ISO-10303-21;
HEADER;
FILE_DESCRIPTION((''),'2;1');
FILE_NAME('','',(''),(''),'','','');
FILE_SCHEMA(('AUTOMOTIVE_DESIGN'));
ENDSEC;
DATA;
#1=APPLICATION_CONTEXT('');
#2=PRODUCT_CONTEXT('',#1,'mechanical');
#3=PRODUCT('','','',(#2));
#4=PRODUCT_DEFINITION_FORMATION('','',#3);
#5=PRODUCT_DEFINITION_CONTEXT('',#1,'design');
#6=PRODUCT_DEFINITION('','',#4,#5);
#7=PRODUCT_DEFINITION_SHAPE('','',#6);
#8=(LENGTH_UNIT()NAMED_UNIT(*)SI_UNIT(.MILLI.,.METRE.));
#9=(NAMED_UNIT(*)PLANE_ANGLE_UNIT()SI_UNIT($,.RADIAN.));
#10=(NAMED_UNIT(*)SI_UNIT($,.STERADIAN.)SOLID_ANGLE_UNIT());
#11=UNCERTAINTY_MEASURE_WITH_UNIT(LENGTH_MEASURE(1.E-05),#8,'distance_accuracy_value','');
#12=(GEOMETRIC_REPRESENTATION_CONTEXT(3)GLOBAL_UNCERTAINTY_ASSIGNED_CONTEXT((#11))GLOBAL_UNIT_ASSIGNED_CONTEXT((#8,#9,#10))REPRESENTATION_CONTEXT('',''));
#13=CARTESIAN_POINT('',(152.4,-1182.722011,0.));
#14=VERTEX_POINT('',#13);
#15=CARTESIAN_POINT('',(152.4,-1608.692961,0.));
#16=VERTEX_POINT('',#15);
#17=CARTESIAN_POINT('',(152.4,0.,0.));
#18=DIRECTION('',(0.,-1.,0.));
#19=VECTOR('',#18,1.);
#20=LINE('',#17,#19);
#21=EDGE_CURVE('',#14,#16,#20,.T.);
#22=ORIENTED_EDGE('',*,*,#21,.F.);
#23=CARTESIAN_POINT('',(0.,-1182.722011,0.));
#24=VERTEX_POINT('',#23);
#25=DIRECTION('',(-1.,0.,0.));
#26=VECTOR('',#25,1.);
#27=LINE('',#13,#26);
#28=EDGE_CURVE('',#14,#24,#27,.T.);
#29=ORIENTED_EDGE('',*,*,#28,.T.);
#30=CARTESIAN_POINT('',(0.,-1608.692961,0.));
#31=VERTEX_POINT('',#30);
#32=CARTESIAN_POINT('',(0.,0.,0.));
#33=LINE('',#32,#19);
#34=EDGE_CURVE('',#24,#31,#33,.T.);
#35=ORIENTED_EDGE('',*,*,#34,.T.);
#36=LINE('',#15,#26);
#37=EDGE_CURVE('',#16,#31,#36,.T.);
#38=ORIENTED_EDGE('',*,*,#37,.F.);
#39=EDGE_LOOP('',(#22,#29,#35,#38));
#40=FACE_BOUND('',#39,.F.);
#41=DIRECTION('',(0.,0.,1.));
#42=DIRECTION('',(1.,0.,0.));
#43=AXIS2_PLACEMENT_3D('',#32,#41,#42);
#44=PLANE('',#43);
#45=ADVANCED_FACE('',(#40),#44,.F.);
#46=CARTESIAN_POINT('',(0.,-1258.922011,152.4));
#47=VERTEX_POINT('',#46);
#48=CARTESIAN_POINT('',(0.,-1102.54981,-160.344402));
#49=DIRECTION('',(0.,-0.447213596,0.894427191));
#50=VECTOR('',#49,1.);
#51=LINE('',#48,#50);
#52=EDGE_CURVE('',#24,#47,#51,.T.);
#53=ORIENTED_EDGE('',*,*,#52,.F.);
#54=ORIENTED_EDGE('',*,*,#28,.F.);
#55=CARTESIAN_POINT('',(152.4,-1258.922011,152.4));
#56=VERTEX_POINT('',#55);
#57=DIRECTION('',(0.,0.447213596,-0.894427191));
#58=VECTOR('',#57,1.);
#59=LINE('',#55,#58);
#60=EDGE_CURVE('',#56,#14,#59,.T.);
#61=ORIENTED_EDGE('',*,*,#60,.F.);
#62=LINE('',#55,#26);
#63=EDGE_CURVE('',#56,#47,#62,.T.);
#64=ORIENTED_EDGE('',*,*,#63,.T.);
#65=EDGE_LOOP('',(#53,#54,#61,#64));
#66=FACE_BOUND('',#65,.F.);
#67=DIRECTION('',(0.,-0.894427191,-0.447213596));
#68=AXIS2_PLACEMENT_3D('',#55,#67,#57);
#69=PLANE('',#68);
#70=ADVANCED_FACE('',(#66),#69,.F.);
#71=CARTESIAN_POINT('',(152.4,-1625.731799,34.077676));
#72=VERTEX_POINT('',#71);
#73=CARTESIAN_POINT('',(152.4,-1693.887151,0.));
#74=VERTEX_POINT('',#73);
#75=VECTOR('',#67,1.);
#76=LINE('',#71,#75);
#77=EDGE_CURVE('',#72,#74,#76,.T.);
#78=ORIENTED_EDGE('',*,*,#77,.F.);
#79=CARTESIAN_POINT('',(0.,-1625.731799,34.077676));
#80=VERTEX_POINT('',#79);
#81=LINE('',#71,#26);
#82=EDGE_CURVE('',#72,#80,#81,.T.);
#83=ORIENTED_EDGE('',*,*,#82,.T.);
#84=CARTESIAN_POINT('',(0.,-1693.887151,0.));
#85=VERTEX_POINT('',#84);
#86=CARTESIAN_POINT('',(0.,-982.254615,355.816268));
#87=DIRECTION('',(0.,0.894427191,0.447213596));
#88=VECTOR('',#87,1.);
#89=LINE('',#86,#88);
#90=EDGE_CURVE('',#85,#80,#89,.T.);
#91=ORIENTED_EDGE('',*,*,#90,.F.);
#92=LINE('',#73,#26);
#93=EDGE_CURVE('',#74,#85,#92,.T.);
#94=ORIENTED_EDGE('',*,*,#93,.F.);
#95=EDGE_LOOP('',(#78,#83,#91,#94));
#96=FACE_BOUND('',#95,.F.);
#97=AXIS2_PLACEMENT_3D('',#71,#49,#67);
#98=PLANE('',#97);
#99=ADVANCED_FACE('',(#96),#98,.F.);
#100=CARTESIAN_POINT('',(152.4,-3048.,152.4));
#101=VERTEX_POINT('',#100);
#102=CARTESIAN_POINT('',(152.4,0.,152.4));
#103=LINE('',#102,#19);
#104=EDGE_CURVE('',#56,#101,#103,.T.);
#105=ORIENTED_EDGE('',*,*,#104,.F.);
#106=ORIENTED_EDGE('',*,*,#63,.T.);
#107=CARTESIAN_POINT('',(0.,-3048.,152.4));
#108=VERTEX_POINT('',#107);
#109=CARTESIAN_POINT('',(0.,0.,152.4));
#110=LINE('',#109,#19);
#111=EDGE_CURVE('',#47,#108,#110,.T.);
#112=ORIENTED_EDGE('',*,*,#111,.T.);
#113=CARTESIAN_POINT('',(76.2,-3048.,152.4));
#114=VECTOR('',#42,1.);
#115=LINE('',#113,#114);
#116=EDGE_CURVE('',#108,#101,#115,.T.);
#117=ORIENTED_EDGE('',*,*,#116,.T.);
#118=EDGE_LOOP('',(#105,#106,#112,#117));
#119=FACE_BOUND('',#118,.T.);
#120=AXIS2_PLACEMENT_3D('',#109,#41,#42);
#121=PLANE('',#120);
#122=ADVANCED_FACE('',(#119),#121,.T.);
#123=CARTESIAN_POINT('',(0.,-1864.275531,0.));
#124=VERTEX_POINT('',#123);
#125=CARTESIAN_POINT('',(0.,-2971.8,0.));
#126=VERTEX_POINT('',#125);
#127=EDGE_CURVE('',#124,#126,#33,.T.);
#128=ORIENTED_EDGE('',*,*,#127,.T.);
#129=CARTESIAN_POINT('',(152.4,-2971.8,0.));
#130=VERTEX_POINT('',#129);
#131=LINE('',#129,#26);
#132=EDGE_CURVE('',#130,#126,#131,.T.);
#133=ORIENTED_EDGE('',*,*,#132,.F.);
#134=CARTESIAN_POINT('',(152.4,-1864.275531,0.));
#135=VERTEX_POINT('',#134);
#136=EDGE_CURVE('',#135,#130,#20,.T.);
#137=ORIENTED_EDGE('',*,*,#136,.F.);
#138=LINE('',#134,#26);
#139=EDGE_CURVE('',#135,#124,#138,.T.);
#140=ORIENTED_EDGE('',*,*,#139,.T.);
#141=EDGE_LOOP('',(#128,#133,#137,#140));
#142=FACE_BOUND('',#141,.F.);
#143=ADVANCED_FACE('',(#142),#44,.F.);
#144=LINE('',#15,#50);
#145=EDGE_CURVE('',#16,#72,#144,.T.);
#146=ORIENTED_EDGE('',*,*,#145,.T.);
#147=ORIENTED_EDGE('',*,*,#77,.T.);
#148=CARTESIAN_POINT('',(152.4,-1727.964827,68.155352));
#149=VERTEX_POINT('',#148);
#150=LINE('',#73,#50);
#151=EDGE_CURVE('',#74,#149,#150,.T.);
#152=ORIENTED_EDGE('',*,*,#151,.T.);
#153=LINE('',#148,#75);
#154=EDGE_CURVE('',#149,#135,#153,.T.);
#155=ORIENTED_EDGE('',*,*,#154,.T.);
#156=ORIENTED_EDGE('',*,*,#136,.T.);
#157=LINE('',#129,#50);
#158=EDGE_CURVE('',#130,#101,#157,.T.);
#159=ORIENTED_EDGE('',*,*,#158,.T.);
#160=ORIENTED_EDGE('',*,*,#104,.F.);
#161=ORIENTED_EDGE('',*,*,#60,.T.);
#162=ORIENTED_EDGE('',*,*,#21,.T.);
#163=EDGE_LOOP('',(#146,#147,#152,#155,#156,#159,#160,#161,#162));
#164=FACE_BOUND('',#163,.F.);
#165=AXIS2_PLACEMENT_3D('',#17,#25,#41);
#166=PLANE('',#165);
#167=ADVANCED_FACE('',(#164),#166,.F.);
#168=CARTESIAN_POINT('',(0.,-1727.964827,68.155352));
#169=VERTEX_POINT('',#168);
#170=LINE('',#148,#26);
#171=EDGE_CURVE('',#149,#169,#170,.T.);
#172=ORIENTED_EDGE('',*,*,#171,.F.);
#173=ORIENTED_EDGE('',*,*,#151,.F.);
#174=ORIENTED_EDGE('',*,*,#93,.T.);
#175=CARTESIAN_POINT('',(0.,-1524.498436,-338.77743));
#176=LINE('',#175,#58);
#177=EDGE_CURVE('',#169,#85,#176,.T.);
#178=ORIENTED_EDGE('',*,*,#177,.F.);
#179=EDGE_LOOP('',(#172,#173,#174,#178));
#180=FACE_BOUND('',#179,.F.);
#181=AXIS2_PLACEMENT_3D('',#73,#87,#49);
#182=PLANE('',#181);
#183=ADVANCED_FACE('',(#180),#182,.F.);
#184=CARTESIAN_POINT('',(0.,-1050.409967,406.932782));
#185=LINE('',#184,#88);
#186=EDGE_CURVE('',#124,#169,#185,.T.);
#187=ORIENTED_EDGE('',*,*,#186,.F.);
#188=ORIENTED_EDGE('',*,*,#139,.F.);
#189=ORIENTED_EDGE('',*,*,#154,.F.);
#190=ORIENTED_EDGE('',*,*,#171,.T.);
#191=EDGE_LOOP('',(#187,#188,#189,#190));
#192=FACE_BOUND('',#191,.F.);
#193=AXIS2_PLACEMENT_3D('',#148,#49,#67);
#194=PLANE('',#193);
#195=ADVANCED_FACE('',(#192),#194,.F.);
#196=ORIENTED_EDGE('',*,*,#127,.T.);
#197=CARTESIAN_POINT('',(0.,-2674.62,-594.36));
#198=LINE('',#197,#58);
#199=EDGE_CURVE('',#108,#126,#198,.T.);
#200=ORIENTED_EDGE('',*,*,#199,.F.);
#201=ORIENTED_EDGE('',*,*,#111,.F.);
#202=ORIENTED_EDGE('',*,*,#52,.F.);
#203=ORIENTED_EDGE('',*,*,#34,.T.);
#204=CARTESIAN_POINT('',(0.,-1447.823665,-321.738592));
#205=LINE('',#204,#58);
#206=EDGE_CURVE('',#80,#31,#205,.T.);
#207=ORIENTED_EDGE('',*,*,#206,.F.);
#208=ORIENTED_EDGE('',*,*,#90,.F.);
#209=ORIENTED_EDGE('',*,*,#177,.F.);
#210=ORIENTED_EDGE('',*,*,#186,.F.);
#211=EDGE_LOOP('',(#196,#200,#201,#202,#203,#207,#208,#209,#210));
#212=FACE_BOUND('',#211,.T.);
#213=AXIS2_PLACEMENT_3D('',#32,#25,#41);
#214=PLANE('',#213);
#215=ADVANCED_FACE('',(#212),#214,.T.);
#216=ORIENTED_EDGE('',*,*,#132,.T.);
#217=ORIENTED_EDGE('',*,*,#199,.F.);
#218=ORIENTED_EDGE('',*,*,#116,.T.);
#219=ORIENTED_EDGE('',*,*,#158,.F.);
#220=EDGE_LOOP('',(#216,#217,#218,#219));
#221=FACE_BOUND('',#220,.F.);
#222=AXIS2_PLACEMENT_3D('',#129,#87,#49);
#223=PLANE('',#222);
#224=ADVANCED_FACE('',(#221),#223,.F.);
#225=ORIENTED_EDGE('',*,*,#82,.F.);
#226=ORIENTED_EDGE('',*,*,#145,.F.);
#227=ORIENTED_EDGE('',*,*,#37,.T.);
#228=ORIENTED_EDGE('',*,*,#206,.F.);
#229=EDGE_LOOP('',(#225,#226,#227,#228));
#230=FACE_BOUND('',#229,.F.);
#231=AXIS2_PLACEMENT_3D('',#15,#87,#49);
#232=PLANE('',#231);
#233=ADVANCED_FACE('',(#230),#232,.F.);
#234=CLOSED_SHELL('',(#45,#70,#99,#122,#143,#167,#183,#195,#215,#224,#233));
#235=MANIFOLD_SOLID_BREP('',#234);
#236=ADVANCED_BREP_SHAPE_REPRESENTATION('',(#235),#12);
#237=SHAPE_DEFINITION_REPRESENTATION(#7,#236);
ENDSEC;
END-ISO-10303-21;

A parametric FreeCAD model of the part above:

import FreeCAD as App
import Part
import Sketcher

V = App.Vector
Q = App.Units.Quantity


def add_polygon(sketch, points):
    """Adds a closed chain of lines whose ends are joined by coincident constraints."""
    first, n = sketch.GeometryCount, len(points)
    for a, b in zip(points, points[1:] + points[:1]):
        sketch.addGeometry(Part.LineSegment(App.Vector(*a, 0), App.Vector(*b, 0)), False)
    for i in range(n):
        sketch.addConstraint(Sketcher.Constraint("Coincident", first + i, 2, first + (i + 1) % n, 1))

doc = App.newDocument("Part")
body = doc.addObject("PartDesign::Body", "Body")

# Sketch on XZ plane
sketch1 = doc.addObject("Sketcher::SketchObject", "Sketch")
body.addObject(sketch1)
sketch1.AttachmentSupport = (doc.XZ_Plane, [""])
sketch1.MapMode = "FlatFace"
add_polygon(sketch1, [(0, 152), (0, 0), (152, 0), (152, 152)])  # lines 0-3
sketch1.addConstraint([
    Sketcher.Constraint("Vertical", 0),
    Sketcher.Constraint("Horizontal", 1),
    Sketcher.Constraint("Vertical", 2),
    Sketcher.Constraint("Horizontal", 3),
    Sketcher.Constraint("Coincident", 0, 2, -1, 1),
    Sketcher.Constraint("Equal", 3, 0),
    Sketcher.Constraint("DistanceX", 1, 1, 1, 2, Q("6 in")),
])
pad1 = doc.addObject("PartDesign::Pad", "Pad")
body.addObject(pad1)
pad1.Profile = sketch1
pad1.Length = Q("120 in")

# Sketch on YZ plane
sketch2 = doc.addObject("Sketcher::SketchObject", "Sketch001")
body.addObject(sketch2)
sketch2.AttachmentSupport = (doc.YZ_Plane, [""])
sketch2.MapMode = "FlatFace"
sketch2.AttachmentOffset = App.Placement(V(0, 0, 6 * 25.4), App.Rotation())
add_polygon(sketch2, [(-2972, 0), (-3048, 152), (-3048, 0)])  # lines 0-2
add_polygon(sketch2, [(0, 152), (-1259, 152), (-1183, 0), (0, 0)])  # lines 3-6
add_polygon(sketch2, [(-1694, 0), (-1609, 0), (-1626, 34)])  # lines 7-9
add_polygon(sketch2, [(-1864, 0), (-1694, 0), (-1728, 68)])  # lines 10-12
sketch2.addConstraint([
    Sketcher.Constraint("Vertical", 1),
    Sketcher.Constraint("Horizontal", 2),
    Sketcher.Constraint("Horizontal", 3),
    Sketcher.Constraint("Horizontal", 5),
    Sketcher.Constraint("Vertical", 6),
    Sketcher.Constraint("Horizontal", 7),
    Sketcher.Constraint("Horizontal", 10),
    Sketcher.Constraint("Coincident", 5, 2, -1, 1),
    Sketcher.Constraint("Coincident", 10, 2, 9, 2),
    Sketcher.Constraint("PointOnObject", 1, 2, -1),
    Sketcher.Constraint("PointOnObject", 7, 2, -1),
    Sketcher.Constraint("Parallel", 0, 4),
    Sketcher.Constraint("Parallel", 4, 8),
    Sketcher.Constraint("Perpendicular", 8, 9),
    Sketcher.Constraint("Perpendicular", 9, 11),
    Sketcher.Constraint("Perpendicular", 11, 12),
    Sketcher.Constraint("Horizontal", 0, 2, 3, 2),
    Sketcher.Constraint("Equal", 9, 11),
    Sketcher.Constraint("DistanceX", 2, 1, 2, 2, Q("3 in")),
    Sketcher.Constraint("DistanceY", 1, 2, 1, 1, Q("6 in")),
    Sketcher.Constraint("Distance", 9, Q("3 in")),
    Sketcher.Constraint("DistanceX", 0, 2, -1, 1, Q("120 in")),
    Sketcher.Constraint("DistanceX", 3, 2, 3, 1, 1258.922011),
    Sketcher.Constraint("DistanceX", 8, 2, -1, 1, 1625.731799),
])
pocket1 = doc.addObject("PartDesign::Pocket", "Pocket")
body.addObject(pocket1)
pocket1.Profile = sketch2
pocket1.Type = "ThroughAll"

doc.recompute()
